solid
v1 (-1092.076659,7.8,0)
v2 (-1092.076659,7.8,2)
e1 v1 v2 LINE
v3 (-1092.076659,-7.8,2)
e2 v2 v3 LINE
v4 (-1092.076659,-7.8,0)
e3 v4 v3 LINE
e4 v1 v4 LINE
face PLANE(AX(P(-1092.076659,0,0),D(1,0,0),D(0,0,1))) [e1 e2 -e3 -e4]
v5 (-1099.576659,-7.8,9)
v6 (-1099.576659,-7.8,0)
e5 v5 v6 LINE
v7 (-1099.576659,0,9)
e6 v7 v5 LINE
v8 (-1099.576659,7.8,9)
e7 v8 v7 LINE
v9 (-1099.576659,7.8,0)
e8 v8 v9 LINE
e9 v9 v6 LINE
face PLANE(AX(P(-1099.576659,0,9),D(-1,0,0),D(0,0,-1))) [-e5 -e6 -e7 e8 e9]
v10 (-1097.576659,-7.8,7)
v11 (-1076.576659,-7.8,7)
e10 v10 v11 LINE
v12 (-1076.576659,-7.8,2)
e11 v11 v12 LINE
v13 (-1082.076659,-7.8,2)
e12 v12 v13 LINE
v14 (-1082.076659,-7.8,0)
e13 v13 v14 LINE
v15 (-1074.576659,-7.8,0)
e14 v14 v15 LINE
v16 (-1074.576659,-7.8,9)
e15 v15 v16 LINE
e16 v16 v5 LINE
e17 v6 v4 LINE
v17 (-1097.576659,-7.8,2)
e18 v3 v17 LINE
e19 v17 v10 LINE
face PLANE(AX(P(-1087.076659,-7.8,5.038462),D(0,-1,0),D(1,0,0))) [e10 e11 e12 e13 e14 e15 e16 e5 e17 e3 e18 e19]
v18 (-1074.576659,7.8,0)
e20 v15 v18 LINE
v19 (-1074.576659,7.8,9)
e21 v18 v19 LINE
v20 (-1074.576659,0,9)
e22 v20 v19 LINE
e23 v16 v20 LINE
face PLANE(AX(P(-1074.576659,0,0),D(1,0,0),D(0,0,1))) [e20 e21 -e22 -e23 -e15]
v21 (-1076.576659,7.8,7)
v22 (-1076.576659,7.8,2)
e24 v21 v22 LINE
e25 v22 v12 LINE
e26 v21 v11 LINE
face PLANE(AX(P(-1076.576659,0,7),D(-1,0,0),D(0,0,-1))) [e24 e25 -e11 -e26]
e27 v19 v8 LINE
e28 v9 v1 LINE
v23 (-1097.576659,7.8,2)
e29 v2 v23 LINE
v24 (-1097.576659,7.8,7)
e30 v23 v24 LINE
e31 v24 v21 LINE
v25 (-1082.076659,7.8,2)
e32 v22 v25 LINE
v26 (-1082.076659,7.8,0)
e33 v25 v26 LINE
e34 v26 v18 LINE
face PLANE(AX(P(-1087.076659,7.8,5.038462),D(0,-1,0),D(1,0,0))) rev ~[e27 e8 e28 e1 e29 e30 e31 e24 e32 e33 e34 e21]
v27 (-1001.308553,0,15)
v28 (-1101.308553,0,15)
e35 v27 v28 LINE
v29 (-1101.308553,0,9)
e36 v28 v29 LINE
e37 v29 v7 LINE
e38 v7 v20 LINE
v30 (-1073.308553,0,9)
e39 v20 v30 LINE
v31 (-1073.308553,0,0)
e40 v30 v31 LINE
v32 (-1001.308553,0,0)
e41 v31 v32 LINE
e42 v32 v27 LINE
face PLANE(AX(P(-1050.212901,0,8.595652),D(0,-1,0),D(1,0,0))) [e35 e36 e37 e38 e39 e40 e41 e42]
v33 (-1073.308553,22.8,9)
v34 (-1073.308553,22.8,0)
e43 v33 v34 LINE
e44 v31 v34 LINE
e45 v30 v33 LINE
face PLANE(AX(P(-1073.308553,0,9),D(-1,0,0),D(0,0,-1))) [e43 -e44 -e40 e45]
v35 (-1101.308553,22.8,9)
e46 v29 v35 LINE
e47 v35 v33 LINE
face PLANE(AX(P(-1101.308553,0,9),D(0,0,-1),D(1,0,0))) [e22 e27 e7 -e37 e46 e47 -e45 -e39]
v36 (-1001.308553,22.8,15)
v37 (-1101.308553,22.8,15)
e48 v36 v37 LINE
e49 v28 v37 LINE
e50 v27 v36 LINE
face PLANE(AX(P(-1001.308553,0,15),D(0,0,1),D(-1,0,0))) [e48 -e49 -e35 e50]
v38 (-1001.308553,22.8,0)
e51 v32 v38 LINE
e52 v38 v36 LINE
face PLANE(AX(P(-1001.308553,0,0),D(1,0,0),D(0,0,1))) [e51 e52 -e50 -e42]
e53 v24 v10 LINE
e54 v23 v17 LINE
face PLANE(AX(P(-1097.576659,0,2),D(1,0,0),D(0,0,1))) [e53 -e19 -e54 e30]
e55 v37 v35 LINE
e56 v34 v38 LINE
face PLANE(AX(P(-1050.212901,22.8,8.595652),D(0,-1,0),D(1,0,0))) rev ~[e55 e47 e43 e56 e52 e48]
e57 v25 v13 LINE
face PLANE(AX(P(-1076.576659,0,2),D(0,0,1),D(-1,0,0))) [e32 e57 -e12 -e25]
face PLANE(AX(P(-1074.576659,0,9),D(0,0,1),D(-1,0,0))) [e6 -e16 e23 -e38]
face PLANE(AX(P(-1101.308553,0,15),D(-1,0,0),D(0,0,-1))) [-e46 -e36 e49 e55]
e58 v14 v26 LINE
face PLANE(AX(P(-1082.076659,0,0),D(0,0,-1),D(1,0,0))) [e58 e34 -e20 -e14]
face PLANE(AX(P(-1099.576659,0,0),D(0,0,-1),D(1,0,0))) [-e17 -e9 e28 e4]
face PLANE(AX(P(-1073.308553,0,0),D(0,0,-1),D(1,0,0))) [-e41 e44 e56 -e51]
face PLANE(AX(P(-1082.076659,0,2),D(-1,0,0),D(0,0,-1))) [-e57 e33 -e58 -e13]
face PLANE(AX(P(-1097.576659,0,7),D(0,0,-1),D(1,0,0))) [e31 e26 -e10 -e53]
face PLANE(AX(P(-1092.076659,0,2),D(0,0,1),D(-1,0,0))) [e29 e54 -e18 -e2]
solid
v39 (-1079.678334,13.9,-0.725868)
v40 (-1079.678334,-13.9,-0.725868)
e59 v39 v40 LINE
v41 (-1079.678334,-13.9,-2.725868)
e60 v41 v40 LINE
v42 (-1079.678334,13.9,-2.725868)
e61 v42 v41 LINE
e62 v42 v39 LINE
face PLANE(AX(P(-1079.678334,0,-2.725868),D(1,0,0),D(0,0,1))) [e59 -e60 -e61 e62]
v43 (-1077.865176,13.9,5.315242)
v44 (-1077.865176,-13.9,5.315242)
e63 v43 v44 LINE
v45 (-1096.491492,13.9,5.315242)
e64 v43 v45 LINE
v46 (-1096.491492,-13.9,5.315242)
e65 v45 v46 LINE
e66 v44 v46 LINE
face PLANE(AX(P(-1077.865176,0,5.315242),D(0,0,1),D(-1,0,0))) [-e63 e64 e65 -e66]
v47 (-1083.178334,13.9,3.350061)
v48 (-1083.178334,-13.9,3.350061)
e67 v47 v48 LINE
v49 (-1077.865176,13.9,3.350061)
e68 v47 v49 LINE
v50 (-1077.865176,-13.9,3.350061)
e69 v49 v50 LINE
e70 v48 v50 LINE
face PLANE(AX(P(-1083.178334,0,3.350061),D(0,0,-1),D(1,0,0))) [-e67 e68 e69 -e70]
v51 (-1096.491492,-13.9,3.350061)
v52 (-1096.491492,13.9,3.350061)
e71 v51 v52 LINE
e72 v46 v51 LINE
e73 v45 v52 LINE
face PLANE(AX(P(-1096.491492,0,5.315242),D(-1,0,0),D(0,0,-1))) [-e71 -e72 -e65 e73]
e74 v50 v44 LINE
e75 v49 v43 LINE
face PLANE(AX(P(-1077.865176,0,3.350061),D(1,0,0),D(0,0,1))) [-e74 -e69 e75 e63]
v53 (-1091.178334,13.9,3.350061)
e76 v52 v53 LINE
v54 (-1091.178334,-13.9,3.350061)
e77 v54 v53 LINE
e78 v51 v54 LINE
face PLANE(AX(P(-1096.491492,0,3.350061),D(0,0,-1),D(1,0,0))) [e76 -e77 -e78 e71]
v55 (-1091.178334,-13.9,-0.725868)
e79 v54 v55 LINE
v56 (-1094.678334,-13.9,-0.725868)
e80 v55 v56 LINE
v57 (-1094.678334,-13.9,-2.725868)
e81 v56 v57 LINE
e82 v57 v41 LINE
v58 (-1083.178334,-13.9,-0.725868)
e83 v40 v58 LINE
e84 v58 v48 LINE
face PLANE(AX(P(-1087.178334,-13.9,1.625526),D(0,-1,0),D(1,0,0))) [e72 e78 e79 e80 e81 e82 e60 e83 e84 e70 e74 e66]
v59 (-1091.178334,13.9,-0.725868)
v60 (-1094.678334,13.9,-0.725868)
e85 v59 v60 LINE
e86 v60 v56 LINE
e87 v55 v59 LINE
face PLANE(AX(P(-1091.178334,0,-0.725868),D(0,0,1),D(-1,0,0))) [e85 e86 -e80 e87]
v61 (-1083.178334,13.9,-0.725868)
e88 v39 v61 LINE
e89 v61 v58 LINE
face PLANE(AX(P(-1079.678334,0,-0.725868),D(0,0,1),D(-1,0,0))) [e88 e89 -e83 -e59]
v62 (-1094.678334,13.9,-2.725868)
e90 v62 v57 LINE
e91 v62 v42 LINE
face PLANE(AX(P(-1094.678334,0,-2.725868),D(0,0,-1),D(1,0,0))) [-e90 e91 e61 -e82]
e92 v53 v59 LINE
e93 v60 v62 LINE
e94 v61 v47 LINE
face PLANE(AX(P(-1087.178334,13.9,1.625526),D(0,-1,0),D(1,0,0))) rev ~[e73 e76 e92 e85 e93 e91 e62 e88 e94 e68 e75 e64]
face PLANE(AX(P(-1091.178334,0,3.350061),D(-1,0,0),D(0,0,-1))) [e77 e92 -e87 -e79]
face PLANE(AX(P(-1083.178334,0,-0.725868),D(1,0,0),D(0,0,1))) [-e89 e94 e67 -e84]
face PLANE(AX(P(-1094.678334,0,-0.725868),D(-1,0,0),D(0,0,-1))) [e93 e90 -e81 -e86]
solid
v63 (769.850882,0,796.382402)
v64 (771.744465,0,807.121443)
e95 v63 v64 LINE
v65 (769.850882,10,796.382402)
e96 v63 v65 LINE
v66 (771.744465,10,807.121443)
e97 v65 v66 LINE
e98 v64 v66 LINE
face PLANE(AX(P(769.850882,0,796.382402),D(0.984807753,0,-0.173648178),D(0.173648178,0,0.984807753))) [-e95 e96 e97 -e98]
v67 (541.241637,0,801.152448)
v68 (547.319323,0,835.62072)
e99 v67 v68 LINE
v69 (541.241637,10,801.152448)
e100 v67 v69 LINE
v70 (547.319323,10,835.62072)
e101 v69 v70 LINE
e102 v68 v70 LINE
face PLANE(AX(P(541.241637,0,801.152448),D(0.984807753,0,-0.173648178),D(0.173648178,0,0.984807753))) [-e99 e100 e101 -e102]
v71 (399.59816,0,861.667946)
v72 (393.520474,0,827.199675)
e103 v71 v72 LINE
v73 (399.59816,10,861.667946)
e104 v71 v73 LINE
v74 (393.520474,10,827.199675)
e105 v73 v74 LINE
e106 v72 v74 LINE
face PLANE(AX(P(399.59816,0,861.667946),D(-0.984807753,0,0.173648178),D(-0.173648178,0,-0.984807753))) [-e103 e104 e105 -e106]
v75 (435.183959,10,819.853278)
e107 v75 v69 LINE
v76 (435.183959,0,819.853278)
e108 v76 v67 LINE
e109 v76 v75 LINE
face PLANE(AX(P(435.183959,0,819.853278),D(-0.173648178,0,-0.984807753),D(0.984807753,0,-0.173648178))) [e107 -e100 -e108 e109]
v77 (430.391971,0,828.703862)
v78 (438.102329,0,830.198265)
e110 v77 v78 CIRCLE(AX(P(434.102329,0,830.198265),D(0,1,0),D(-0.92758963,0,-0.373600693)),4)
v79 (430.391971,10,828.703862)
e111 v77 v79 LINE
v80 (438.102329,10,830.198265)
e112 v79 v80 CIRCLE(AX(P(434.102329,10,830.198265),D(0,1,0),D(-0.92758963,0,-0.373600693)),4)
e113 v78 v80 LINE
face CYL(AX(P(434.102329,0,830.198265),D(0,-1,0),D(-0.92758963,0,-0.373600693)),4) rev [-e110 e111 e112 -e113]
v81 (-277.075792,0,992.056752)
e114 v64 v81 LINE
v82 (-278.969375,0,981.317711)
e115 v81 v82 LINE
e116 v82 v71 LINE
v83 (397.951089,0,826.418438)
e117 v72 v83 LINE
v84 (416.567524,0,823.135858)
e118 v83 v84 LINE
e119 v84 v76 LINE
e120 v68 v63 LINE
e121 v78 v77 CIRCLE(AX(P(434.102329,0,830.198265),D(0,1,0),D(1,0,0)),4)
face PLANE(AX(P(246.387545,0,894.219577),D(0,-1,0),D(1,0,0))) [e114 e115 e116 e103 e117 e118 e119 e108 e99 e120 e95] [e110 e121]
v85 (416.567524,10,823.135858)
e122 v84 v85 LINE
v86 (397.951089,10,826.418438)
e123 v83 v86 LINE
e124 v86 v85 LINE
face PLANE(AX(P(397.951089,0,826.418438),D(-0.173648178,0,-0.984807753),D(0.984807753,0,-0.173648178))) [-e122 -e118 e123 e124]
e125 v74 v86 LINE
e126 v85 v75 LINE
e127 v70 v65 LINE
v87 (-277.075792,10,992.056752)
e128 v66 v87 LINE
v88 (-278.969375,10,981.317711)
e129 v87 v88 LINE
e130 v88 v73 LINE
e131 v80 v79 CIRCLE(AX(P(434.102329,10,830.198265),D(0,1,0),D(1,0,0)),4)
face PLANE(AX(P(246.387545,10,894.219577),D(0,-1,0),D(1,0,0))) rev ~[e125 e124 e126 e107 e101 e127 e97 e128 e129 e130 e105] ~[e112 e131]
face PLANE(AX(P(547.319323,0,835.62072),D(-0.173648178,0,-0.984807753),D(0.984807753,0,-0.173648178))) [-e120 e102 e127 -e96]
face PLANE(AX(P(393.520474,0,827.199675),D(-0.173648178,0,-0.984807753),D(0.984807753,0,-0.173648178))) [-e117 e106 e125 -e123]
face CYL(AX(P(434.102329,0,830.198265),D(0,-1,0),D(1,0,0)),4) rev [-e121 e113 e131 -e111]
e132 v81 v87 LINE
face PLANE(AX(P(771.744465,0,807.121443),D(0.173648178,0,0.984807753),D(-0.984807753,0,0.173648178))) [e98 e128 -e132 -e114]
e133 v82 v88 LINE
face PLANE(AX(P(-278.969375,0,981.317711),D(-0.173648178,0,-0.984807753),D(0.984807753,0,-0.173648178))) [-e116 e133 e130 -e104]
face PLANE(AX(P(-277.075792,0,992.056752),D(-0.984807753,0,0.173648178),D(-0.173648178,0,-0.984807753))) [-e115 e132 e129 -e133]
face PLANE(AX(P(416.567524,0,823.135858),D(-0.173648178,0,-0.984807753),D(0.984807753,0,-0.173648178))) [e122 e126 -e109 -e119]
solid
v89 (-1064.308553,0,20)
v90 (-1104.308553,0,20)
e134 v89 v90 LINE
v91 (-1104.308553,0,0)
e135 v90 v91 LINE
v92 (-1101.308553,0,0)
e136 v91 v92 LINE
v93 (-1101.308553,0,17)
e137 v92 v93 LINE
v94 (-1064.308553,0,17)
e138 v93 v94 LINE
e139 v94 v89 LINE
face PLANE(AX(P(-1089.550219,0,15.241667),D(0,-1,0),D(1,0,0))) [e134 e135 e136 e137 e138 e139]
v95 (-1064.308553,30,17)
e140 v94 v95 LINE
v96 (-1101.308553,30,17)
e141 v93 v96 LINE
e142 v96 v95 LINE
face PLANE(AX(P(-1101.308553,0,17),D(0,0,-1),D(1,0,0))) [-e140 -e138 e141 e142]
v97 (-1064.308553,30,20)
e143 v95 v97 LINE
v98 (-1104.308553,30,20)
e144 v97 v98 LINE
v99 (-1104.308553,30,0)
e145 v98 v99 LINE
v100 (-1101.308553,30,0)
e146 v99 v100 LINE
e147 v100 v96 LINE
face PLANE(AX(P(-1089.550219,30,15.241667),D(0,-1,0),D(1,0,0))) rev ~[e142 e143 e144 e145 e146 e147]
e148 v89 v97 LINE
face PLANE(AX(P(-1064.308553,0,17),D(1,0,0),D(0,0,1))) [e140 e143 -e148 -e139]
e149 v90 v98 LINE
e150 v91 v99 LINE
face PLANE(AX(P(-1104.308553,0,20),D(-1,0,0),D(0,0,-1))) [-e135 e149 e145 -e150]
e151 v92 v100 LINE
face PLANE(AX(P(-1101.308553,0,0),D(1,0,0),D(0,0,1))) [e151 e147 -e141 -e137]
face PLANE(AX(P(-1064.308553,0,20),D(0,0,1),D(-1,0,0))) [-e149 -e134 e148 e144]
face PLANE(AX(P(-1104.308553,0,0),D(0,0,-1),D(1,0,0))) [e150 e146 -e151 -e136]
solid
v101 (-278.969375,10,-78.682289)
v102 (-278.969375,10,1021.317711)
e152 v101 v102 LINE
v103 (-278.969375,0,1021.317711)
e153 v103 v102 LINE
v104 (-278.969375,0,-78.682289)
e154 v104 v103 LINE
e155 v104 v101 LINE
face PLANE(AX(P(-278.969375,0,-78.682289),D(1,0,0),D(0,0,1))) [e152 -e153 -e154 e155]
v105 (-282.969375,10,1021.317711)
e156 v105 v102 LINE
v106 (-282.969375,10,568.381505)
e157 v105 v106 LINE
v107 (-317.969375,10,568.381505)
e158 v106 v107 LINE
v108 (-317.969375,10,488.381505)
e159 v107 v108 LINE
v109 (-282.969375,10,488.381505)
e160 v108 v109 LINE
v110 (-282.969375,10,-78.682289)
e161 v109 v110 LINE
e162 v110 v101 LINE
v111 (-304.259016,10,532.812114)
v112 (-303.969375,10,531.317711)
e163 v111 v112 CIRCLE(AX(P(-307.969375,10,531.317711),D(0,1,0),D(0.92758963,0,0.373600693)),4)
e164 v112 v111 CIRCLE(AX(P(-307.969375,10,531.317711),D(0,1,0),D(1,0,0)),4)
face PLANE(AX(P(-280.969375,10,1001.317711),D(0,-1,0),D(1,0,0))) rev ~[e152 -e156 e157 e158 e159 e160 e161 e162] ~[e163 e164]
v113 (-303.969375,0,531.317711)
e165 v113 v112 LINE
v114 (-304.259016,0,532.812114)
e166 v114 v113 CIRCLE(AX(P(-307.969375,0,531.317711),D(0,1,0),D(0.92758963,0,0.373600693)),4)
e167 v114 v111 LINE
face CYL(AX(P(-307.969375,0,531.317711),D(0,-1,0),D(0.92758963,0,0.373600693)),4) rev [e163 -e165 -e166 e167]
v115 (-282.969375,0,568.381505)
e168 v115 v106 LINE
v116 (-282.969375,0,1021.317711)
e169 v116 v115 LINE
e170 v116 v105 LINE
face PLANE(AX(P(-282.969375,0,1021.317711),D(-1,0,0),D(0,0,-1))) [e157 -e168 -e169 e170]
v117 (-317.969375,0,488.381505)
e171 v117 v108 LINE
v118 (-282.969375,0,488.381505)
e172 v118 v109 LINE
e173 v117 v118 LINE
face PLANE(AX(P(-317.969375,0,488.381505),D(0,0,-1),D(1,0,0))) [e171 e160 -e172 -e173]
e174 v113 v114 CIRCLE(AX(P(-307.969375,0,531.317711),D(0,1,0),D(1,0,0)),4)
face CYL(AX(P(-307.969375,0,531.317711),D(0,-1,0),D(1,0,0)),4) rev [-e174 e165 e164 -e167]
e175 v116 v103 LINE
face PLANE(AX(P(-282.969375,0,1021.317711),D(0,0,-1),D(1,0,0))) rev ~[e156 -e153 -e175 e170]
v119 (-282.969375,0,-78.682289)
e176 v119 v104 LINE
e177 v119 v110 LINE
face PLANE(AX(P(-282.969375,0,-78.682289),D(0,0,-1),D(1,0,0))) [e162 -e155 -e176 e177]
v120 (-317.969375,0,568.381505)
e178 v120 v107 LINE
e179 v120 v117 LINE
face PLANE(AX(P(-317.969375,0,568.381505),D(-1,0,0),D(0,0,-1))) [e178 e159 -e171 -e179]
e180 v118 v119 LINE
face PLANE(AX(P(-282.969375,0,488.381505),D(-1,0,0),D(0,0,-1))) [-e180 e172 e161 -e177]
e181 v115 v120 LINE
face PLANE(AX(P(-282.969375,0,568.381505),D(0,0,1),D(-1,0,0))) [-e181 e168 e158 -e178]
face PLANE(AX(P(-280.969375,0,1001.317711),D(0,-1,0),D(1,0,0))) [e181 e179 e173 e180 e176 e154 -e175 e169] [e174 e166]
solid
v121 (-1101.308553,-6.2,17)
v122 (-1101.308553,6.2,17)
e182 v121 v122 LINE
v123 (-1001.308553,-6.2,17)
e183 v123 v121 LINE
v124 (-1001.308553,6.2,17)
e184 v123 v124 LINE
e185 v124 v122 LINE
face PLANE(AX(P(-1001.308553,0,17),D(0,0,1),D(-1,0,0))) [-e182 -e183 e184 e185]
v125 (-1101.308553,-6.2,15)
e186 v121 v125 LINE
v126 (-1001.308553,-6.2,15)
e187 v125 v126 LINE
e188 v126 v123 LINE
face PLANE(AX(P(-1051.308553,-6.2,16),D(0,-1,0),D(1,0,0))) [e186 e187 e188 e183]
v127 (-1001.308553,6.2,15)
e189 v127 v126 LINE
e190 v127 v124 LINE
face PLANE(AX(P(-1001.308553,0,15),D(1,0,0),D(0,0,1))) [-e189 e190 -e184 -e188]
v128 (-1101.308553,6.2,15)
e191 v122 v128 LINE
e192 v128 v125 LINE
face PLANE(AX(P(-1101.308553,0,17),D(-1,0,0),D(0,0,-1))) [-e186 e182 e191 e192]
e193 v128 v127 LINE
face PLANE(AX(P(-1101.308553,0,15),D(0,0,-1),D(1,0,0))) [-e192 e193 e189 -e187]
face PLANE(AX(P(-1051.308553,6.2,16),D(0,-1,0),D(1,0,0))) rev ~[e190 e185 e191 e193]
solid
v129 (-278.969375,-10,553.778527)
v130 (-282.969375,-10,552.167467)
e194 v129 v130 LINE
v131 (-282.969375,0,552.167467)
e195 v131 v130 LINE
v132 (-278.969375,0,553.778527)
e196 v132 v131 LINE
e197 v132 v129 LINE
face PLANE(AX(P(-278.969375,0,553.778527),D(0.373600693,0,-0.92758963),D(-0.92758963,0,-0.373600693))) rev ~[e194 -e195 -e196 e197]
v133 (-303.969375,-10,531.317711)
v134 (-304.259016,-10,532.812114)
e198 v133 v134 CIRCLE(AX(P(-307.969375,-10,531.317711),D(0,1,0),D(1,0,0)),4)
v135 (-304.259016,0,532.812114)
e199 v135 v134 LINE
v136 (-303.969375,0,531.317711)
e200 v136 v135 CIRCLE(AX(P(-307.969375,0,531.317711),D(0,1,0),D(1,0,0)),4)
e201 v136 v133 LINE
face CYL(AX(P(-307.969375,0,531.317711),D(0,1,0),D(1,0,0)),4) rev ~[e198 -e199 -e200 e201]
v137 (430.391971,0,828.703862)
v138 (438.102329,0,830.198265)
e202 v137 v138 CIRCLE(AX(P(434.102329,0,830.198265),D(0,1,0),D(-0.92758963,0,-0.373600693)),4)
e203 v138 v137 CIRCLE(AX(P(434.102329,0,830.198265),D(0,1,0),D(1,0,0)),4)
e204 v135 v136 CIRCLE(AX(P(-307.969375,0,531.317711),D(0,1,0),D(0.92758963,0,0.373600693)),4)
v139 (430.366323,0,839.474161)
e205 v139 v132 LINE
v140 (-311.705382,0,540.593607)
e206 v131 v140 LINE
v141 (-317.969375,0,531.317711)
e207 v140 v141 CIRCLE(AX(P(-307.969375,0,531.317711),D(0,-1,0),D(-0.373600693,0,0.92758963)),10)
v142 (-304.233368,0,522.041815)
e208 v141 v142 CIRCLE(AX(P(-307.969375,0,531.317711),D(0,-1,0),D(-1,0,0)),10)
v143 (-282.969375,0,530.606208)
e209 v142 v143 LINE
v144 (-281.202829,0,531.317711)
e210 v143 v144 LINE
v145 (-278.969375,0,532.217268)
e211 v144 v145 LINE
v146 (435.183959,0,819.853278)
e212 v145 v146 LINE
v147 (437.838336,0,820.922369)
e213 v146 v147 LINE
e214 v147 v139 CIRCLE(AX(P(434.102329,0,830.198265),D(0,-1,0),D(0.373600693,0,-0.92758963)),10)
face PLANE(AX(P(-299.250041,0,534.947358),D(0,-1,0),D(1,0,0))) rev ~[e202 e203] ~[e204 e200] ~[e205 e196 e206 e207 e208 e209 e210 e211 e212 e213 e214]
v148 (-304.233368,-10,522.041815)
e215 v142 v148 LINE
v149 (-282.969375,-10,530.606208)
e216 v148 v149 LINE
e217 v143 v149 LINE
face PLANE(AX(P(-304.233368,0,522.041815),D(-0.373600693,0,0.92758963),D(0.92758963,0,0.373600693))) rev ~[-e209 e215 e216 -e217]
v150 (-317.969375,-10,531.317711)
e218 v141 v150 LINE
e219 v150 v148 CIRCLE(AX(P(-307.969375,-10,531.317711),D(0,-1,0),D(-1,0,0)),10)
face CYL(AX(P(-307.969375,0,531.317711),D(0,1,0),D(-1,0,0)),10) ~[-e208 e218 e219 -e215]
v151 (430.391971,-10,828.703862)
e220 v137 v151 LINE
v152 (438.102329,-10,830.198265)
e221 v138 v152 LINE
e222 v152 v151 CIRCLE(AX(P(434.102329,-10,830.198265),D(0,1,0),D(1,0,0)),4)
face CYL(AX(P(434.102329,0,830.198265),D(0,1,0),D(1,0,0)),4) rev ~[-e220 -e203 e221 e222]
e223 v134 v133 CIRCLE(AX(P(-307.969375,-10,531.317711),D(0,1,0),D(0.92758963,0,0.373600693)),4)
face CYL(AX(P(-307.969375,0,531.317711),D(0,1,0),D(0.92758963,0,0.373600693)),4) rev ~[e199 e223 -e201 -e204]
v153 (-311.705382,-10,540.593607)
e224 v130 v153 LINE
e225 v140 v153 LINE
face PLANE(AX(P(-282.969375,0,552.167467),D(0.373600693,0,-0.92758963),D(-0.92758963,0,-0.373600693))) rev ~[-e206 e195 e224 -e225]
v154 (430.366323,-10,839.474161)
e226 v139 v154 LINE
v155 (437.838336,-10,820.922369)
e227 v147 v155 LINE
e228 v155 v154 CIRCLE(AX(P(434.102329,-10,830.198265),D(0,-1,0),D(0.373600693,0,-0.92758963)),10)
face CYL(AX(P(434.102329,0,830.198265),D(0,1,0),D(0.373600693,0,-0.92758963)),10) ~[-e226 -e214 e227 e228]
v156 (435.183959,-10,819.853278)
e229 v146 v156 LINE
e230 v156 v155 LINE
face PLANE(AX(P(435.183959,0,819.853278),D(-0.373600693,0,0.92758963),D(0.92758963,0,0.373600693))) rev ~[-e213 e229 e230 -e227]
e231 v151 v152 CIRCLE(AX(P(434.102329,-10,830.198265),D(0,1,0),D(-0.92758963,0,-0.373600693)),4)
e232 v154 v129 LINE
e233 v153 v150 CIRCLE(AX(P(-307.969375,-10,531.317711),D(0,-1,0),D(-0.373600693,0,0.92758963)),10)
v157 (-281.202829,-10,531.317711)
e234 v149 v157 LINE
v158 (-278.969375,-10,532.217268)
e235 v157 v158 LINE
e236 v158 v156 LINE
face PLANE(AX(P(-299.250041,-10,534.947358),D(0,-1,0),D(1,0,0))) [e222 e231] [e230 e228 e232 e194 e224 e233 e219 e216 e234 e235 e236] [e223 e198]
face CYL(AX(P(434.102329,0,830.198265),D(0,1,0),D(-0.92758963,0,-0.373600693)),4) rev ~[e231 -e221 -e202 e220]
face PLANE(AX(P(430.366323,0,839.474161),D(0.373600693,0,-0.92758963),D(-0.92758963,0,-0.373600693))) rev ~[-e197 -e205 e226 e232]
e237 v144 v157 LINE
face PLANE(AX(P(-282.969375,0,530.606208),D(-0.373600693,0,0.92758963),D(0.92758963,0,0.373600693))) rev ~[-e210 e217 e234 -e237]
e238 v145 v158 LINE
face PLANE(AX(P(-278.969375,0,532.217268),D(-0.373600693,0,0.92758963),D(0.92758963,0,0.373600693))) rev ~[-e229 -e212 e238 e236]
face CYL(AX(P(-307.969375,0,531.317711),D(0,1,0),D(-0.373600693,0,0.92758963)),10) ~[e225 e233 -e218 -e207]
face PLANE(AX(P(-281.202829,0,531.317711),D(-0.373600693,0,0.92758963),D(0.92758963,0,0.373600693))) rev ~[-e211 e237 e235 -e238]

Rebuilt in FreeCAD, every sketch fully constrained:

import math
import FreeCAD as App
import Part
import Sketcher
Q = App.Units.Quantity

doc = App.newDocument("Part")
body = doc.addObject("PartDesign::Body", "Body")

sketch1 = body.newObject("Sketcher::SketchObject", "Sketch")
sketch1.AttachmentSupport = (doc.getObject("XZ_Plane"), [""])
sketch1.MapMode = "FlatFace"
sketch1.addGeometry([
    Part.LineSegment(App.Vector(-282.969375, 1021.317711, 0), App.Vector(-282.969375, 568.381505, 0)),
    Part.LineSegment(App.Vector(-282.969375, 568.381505, 0), App.Vector(-317.969375, 568.381505, 0)),
    Part.LineSegment(App.Vector(-317.969375, 568.381505, 0), App.Vector(-317.969375, 488.381505, 0)),
    Part.LineSegment(App.Vector(-317.969375, 488.381505, 0), App.Vector(-282.969375, 488.381505, 0)),
    Part.LineSegment(App.Vector(-282.969375, 488.381505, 0), App.Vector(-282.969375, -78.682289, 0)),
    Part.LineSegment(App.Vector(-282.969375, -78.682289, 0), App.Vector(-278.969375, -78.682289, 0)),
    Part.LineSegment(App.Vector(-278.969375, -78.682289, 0), App.Vector(-278.969375, 1021.317711, 0)),
    Part.LineSegment(App.Vector(-278.969375, 1021.317711, 0), App.Vector(-282.969375, 1021.317711, 0)),
    Part.ArcOfCircle(Part.Circle(App.Vector(-307.969375, 531.317711, 0), App.Vector(0, 0, 1), 4), math.radians(21.937853), math.radians(360)),
    Part.ArcOfCircle(Part.Circle(App.Vector(-307.969375, 531.317711, 0), App.Vector(0, 0, 1), 4), math.radians(0), math.radians(21.937853)),
], False)
sketch1.addConstraint([
    Sketcher.Constraint("Coincident", 0, 2, 1, 1),
    Sketcher.Constraint("Coincident", 1, 2, 2, 1),
    Sketcher.Constraint("Coincident", 2, 2, 3, 1),
    Sketcher.Constraint("Coincident", 3, 2, 4, 1),
    Sketcher.Constraint("Coincident", 4, 2, 5, 1),
    Sketcher.Constraint("Coincident", 5, 2, 6, 1),
    Sketcher.Constraint("Coincident", 6, 2, 7, 1),
    Sketcher.Constraint("Coincident", 7, 2, 0, 1),
    Sketcher.Constraint("Tangent", 8, 1, 9, 2),
    Sketcher.Constraint("Coincident", 9, 1, 8, 2),
    Sketcher.Constraint("Vertical", 0),
    Sketcher.Constraint("Horizontal", 1),
    Sketcher.Constraint("Vertical", 2),
    Sketcher.Constraint("Horizontal", 3),
    Sketcher.Constraint("Vertical", 4),
    Sketcher.Constraint("Horizontal", 5),
    Sketcher.Constraint("Vertical", 6),
    Sketcher.Constraint("Horizontal", 7),
    Sketcher.Constraint("Horizontal", 8, 3, 9, 1),
    Sketcher.Constraint("Vertical", 0, 2, 3, 2),
    Sketcher.Constraint("Radius", 8, 4.0),
    Sketcher.Constraint("DistanceX", 1, 2, 1, 1, 35.0),
    Sketcher.Constraint("DistanceX", 5, 1, 5, 2, 4.0),
    Sketcher.Constraint("DistanceY", 2, 2, 2, 1, 80.0),
    Sketcher.Constraint("DistanceY", 6, 1, 6, 2, 1100.0),
    Sketcher.Constraint("DistanceX", 9, 3, 0, 2, 25.0),
    Sketcher.Constraint("DistanceY", 4, 2, 8, 3, 610.0),
    Sketcher.Constraint("DistanceY", 0, 2, 0, 1, 452.936206),
    Sketcher.Constraint("DistanceY", -1, 1, 8, 3, 531.317711),
    Sketcher.Constraint("DistanceX", 9, 3, 8, 1, 3.710359),
    Sketcher.Constraint("DistanceX", 8, 3, -1, 1, 307.969375),
])
pad1 = body.newObject("PartDesign::Pad", "Pad")
pad1.Profile = sketch1
pad1.Length = 10
pad1.Reversed = True
body2 = doc.addObject("PartDesign::Body", "Body001")

sketch2 = body2.newObject("Sketcher::SketchObject", "Sketch001")
sketch2.AttachmentSupport = (doc.getObject("XZ_Plane001"), [""])
sketch2.MapMode = "FlatFace"
sketch2.addGeometry([
    Part.LineSegment(App.Vector(-277.075792, 992.056752, 0), App.Vector(-278.969375, 981.317711, 0)),
    Part.LineSegment(App.Vector(-278.969375, 981.317711, 0), App.Vector(399.59816, 861.667946, 0)),
    Part.LineSegment(App.Vector(399.59816, 861.667946, 0), App.Vector(393.520474, 827.199675, 0)),
    Part.LineSegment(App.Vector(393.520474, 827.199675, 0), App.Vector(397.951089, 826.418438, 0)),
    Part.LineSegment(App.Vector(397.951089, 826.418438, 0), App.Vector(416.567524, 823.135858, 0)),
    Part.LineSegment(App.Vector(416.567524, 823.135858, 0), App.Vector(435.183959, 819.853278, 0)),
    Part.LineSegment(App.Vector(435.183959, 819.853278, 0), App.Vector(541.241637, 801.152448, 0)),
    Part.LineSegment(App.Vector(541.241637, 801.152448, 0), App.Vector(547.319323, 835.62072, 0)),
    Part.LineSegment(App.Vector(547.319323, 835.62072, 0), App.Vector(769.850882, 796.382402, 0)),
    Part.LineSegment(App.Vector(769.850882, 796.382402, 0), App.Vector(771.744465, 807.121443, 0)),
    Part.LineSegment(App.Vector(771.744465, 807.121443, 0), App.Vector(-277.075792, 992.056752, 0)),
    Part.ArcOfCircle(Part.Circle(App.Vector(434.102329, 830.198265, 0), App.Vector(0, 0, 1), 4), math.radians(0), math.radians(201.937853)),
    Part.ArcOfCircle(Part.Circle(App.Vector(434.102329, 830.198265, 0), App.Vector(0, 0, 1), 4), math.radians(-158.062147), math.radians(0)),
], False)
sketch2.addConstraint([
    Sketcher.Constraint("Coincident", 0, 2, 1, 1),
    Sketcher.Constraint("Coincident", 1, 2, 2, 1),
    Sketcher.Constraint("Coincident", 2, 2, 3, 1),
    Sketcher.Constraint("Coincident", 3, 2, 4, 1),
    Sketcher.Constraint("Coincident", 4, 2, 5, 1),
    Sketcher.Constraint("Coincident", 5, 2, 6, 1),
    Sketcher.Constraint("Coincident", 6, 2, 7, 1),
    Sketcher.Constraint("Coincident", 7, 2, 8, 1),
    Sketcher.Constraint("Coincident", 8, 2, 9, 1),
    Sketcher.Constraint("Coincident", 9, 2, 10, 1),
    Sketcher.Constraint("Coincident", 10, 2, 0, 1),
    Sketcher.Constraint("Tangent", 11, 1, 12, 2),
    Sketcher.Constraint("Coincident", 12, 1, 11, 2),
    Sketcher.Constraint("Perpendicular", 0, 1),
    Sketcher.Constraint("Perpendicular", 1, 2),
    Sketcher.Constraint("Perpendicular", 2, 3),
    Sketcher.Constraint("Parallel", 3, 4),
    Sketcher.Constraint("Parallel", 4, 5),
    Sketcher.Constraint("Parallel", 5, 6),
    Sketcher.Constraint("Perpendicular", 6, 7),
    Sketcher.Constraint("Perpendicular", 7, 8),
    Sketcher.Constraint("Perpendicular", 8, 9),
    Sketcher.Constraint("Perpendicular", 9, 10),
    Sketcher.Constraint("Horizontal", 12, 3, 11, 1),
    Sketcher.Constraint("Equal", 4, 5),
    Sketcher.Constraint("Equal", 2, 7),
    Sketcher.Constraint("Radius", 11, 4.0),
    Sketcher.Constraint("Angle", 0, Q("-100 deg")),
    Sketcher.Constraint("Distance", 2, 35.0),
    Sketcher.Constraint("Distance", 10, 1065.0),
    Sketcher.Constraint("DistanceY", -1, 1, 8, 2, 796.382402),
    Sketcher.Constraint("DistanceX", 4, 2, 7, 2, 130.751799),
    Sketcher.Constraint("Distance", 0, 10.904708),
    Sketcher.Constraint("Distance", 6, 107.693788),
    Sketcher.Constraint("DistanceX", -1, 1, 11, 3, 434.102329),
    Sketcher.Constraint("DistanceX", -1, 1, 1, 2, 399.59816),
    Sketcher.Constraint("DistanceX", -1, 1, 3, 2, 397.951089),
    Sketcher.Constraint("DistanceY", -1, 1, 4, 2, 823.135858),
    Sketcher.Constraint("DistanceX", -1, 1, 12, 1, 430.391971),
    Sketcher.Constraint("DistanceY", 11, 3, 1, 2, 31.469681),
])
pad2 = body2.newObject("PartDesign::Pad", "Pad001")
pad2.Profile = sketch2
pad2.Length = 10
pad2.Reversed = True
body3 = doc.addObject("PartDesign::Body", "Body002")

sketch3 = body3.newObject("Sketcher::SketchObject", "Sketch002")
sketch3.AttachmentSupport = (doc.getObject("XZ_Plane002"), [""])
sketch3.MapMode = "FlatFace"
sketch3.addGeometry([
    Part.LineSegment(App.Vector(-282.969375, 552.167467, 0), App.Vector(-311.705382, 540.593607, 0)),
    Part.ArcOfCircle(Part.Circle(App.Vector(-307.969375, 531.317711, 0), App.Vector(0, 0, 1), 10), math.radians(111.937853), math.radians(180)),
    Part.ArcOfCircle(Part.Circle(App.Vector(-307.969375, 531.317711, 0), App.Vector(0, 0, 1), 10), math.radians(180), math.radians(291.937853)),
    Part.LineSegment(App.Vector(-304.233368, 522.041815, 0), App.Vector(-282.969375, 530.606208, 0)),
    Part.LineSegment(App.Vector(-282.969375, 530.606208, 0), App.Vector(-281.202829, 531.317711, 0)),
    Part.LineSegment(App.Vector(-281.202829, 531.317711, 0), App.Vector(-278.969375, 532.217268, 0)),
    Part.LineSegment(App.Vector(-278.969375, 532.217268, 0), App.Vector(435.183959, 819.853278, 0)),
    Part.LineSegment(App.Vector(435.183959, 819.853278, 0), App.Vector(437.838336, 820.922369, 0)),
    Part.ArcOfCircle(Part.Circle(App.Vector(434.102329, 830.198265, 0), App.Vector(0, 0, 1), 10), math.radians(-68.062147), math.radians(111.937853)),
    Part.LineSegment(App.Vector(430.366323, 839.474161, 0), App.Vector(-278.969375, 553.778527, 0)),
    Part.LineSegment(App.Vector(-278.969375, 553.778527, 0), App.Vector(-282.969375, 552.167467, 0)),
    Part.ArcOfCircle(Part.Circle(App.Vector(-307.969375, 531.317711, 0), App.Vector(0, 0, 1), 4), math.radians(21.937853), math.radians(360)),
    Part.ArcOfCircle(Part.Circle(App.Vector(-307.969375, 531.317711, 0), App.Vector(0, 0, 1), 4), math.radians(0), math.radians(21.937853)),
    Part.ArcOfCircle(Part.Circle(App.Vector(434.102329, 830.198265, 0), App.Vector(0, 0, 1), 4), math.radians(0), math.radians(201.937853)),
    Part.ArcOfCircle(Part.Circle(App.Vector(434.102329, 830.198265, 0), App.Vector(0, 0, 1), 4), math.radians(-158.062147), math.radians(0)),
], False)
sketch3.addConstraint([
    Sketcher.Constraint("Tangent", 0, 2, 1, 1),
    Sketcher.Constraint("Tangent", 1, 2, 2, 1),
    Sketcher.Constraint("Tangent", 2, 2, 3, 1),
    Sketcher.Constraint("Coincident", 3, 2, 4, 1),
    Sketcher.Constraint("Coincident", 4, 2, 5, 1),
    Sketcher.Constraint("Coincident", 5, 2, 6, 1),
    Sketcher.Constraint("Coincident", 6, 2, 7, 1),
    Sketcher.Constraint("Tangent", 7, 2, 8, 1),
    Sketcher.Constraint("Tangent", 8, 2, 9, 1),
    Sketcher.Constraint("Coincident", 9, 2, 10, 1),
    Sketcher.Constraint("Coincident", 10, 2, 0, 1),
    Sketcher.Constraint("Tangent", 11, 1, 12, 2),
    Sketcher.Constraint("Coincident", 12, 1, 11, 2),
    Sketcher.Constraint("Tangent", 13, 1, 14, 2),
    Sketcher.Constraint("Coincident", 14, 1, 13, 2),
    Sketcher.Constraint("Coincident", 11, 3, 1, 3),
    Sketcher.Constraint("Coincident", 13, 3, 8, 3),
    Sketcher.Constraint("Equal", 1, 2),
    Sketcher.Constraint("Equal", 2, 8),
    Sketcher.Constraint("Equal", 12, 13),
    Sketcher.Constraint("Parallel", 0, 3),
    Sketcher.Constraint("Parallel", 3, 4),
    Sketcher.Constraint("Parallel", 4, 5),
    Sketcher.Constraint("Parallel", 5, 6),
    Sketcher.Constraint("Parallel", 6, 7),
    Sketcher.Constraint("Parallel", 7, 9),
    Sketcher.Constraint("Horizontal", 12, 3, 1, 2),
    Sketcher.Constraint("Horizontal", 1, 2, 4, 2),
    Sketcher.Constraint("Horizontal", 4, 2, 12, 1),
    Sketcher.Constraint("Horizontal", 14, 3, 13, 1),
    Sketcher.Constraint("Vertical", 5, 2, 9, 2),
    Sketcher.Constraint("Vertical", 3, 2, 10, 2),
    Sketcher.Constraint("Radius", 1, 10.0),
    Sketcher.Constraint("Radius", 11, 4.0),
    Sketcher.Constraint("DistanceX", 12, 3, 3, 2, 25.0),
    Sketcher.Constraint("DistanceX", 3, 2, 5, 2, 4.0),
    Sketcher.Constraint("DistanceY", 5, 2, 7, 2, 288.7051),
    Sketcher.Constraint("Distance", 6, 769.90224),
    Sketcher.Constraint("DistanceY", -1, 1, 1, 3, 531.317711),
    Sketcher.Constraint("DistanceX", -1, 1, 8, 3, 434.102329),
    Sketcher.Constraint("DistanceX", 0, 2, -1, 1, 311.705382),
    Sketcher.Constraint("DistanceX", -1, 1, 14, 1, 430.391971),
    Sketcher.Constraint("DistanceX", 12, 3, 11, 1, 3.710359),
])
pad3 = body3.newObject("PartDesign::Pad", "Pad002")
pad3.Profile = sketch3
pad3.Length = 10
body4 = doc.addObject("PartDesign::Body", "Body003")

sketch4 = body4.newObject("Sketcher::SketchObject", "Sketch003")
sketch4.AttachmentSupport = (doc.getObject("XZ_Plane003"), [""])
sketch4.MapMode = "FlatFace"
sketch4.addGeometry([
    Part.LineSegment(App.Vector(-1104.308553, 20, 0), App.Vector(-1104.308553, 0, 0)),
    Part.LineSegment(App.Vector(-1104.308553, 0, 0), App.Vector(-1101.308553, 0, 0)),
    Part.LineSegment(App.Vector(-1101.308553, 0, 0), App.Vector(-1101.308553, 17, 0)),
    Part.LineSegment(App.Vector(-1101.308553, 17, 0), App.Vector(-1064.308553, 17, 0)),
    Part.LineSegment(App.Vector(-1064.308553, 17, 0), App.Vector(-1064.308553, 20, 0)),
    Part.LineSegment(App.Vector(-1064.308553, 20, 0), App.Vector(-1104.308553, 20, 0)),
], False)
sketch4.addConstraint([
    Sketcher.Constraint("Coincident", 0, 2, 1, 1),
    Sketcher.Constraint("Coincident", 1, 2, 2, 1),
    Sketcher.Constraint("Coincident", 2, 2, 3, 1),
    Sketcher.Constraint("Coincident", 3, 2, 4, 1),
    Sketcher.Constraint("Coincident", 4, 2, 5, 1),
    Sketcher.Constraint("Coincident", 5, 2, 0, 1),
    Sketcher.Constraint("Vertical", 0),
    Sketcher.Constraint("Horizontal", 1),
    Sketcher.Constraint("Vertical", 2),
    Sketcher.Constraint("Horizontal", 3),
    Sketcher.Constraint("Vertical", 4),
    Sketcher.Constraint("Horizontal", 5),
    Sketcher.Constraint("PointOnObject", 0, 2, -1),
    Sketcher.Constraint("Equal", 1, 4),
    Sketcher.Constraint("DistanceX", 1, 1, 1, 2, 3.0),
    Sketcher.Constraint("DistanceX", 3, 1, 3, 2, 37.0),
    Sketcher.Constraint("DistanceY", 0, 2, 0, 1, 20.0),
    Sketcher.Constraint("DistanceX", 0, 2, -1, 1, 1104.308553),
])
pad4 = body4.newObject("PartDesign::Pad", "Pad003")
pad4.Profile = sketch4
pad4.Length = 30
pad4.Reversed = True
body5 = doc.addObject("PartDesign::Body", "Body004")

sketch5 = body5.newObject("Sketcher::SketchObject", "Sketch004")
sketch5.AttachmentSupport = (doc.getObject("XZ_Plane004"), [""])
sketch5.MapMode = "FlatFace"
sketch5.addGeometry([
    Part.LineSegment(App.Vector(-1101.308553, 15, 0), App.Vector(-1101.308553, 9, 0)),
    Part.LineSegment(App.Vector(-1101.308553, 9, 0), App.Vector(-1073.308553, 9, 0)),
    Part.LineSegment(App.Vector(-1073.308553, 9, 0), App.Vector(-1073.308553, 0, 0)),
    Part.LineSegment(App.Vector(-1073.308553, 0, 0), App.Vector(-1001.308553, 0, 0)),
    Part.LineSegment(App.Vector(-1001.308553, 0, 0), App.Vector(-1001.308553, 15, 0)),
    Part.LineSegment(App.Vector(-1001.308553, 15, 0), App.Vector(-1101.308553, 15, 0)),
], False)
sketch5.addConstraint([
    Sketcher.Constraint("Coincident", 0, 2, 1, 1),
    Sketcher.Constraint("Coincident", 1, 2, 2, 1),
    Sketcher.Constraint("Coincident", 2, 2, 3, 1),
    Sketcher.Constraint("Coincident", 3, 2, 4, 1),
    Sketcher.Constraint("Coincident", 4, 2, 5, 1),
    Sketcher.Constraint("Coincident", 5, 2, 0, 1),
    Sketcher.Constraint("Vertical", 0),
    Sketcher.Constraint("Horizontal", 1),
    Sketcher.Constraint("Vertical", 2),
    Sketcher.Constraint("Horizontal", 3),
    Sketcher.Constraint("Vertical", 4),
    Sketcher.Constraint("Horizontal", 5),
    Sketcher.Constraint("PointOnObject", 2, 2, -1),
    Sketcher.Constraint("DistanceX", 1, 1, 1, 2, 28.0),
    Sketcher.Constraint("DistanceX", 3, 1, 3, 2, 72.0),
    Sketcher.Constraint("DistanceY", 0, 2, 0, 1, 6.0),
    Sketcher.Constraint("DistanceY", 2, 2, 2, 1, 9.0),
    Sketcher.Constraint("DistanceX", 0, 2, -1, 1, 1101.308553),
])
pad5 = body5.newObject("PartDesign::Pad", "Pad004")
pad5.Profile = sketch5
pad5.Length = 22.8
pad5.Reversed = True

sketch6 = body5.newObject("Sketcher::SketchObject", "Sketch005")
sketch6.AttachmentSupport = (doc.getObject("XZ_Plane004"), [""])
sketch6.MapMode = "FlatFace"
sketch6.addGeometry([
    Part.LineSegment(App.Vector(-1074.576659, 9, 0), App.Vector(-1099.576659, 9, 0)),
    Part.LineSegment(App.Vector(-1099.576659, 9, 0), App.Vector(-1099.576659, 0, 0)),
    Part.LineSegment(App.Vector(-1099.576659, 0, 0), App.Vector(-1092.076659, 0, 0)),
    Part.LineSegment(App.Vector(-1092.076659, 0, 0), App.Vector(-1092.076659, 2, 0)),
    Part.LineSegment(App.Vector(-1092.076659, 2, 0), App.Vector(-1097.576659, 2, 0)),
    Part.LineSegment(App.Vector(-1097.576659, 2, 0), App.Vector(-1097.576659, 7, 0)),
    Part.LineSegment(App.Vector(-1097.576659, 7, 0), App.Vector(-1076.576659, 7, 0)),
    Part.LineSegment(App.Vector(-1076.576659, 7, 0), App.Vector(-1076.576659, 2, 0)),
    Part.LineSegment(App.Vector(-1076.576659, 2, 0), App.Vector(-1082.076659, 2, 0)),
    Part.LineSegment(App.Vector(-1082.076659, 2, 0), App.Vector(-1082.076659, 0, 0)),
    Part.LineSegment(App.Vector(-1082.076659, 0, 0), App.Vector(-1074.576659, 0, 0)),
    Part.LineSegment(App.Vector(-1074.576659, 0, 0), App.Vector(-1074.576659, 9, 0)),
], False)
sketch6.addConstraint([
    Sketcher.Constraint("Coincident", 0, 2, 1, 1),
    Sketcher.Constraint("Coincident", 1, 2, 2, 1),
    Sketcher.Constraint("Coincident", 2, 2, 3, 1),
    Sketcher.Constraint("Coincident", 3, 2, 4, 1),
    Sketcher.Constraint("Coincident", 4, 2, 5, 1),
    Sketcher.Constraint("Coincident", 5, 2, 6, 1),
    Sketcher.Constraint("Coincident", 6, 2, 7, 1),
    Sketcher.Constraint("Coincident", 7, 2, 8, 1),
    Sketcher.Constraint("Coincident", 8, 2, 9, 1),
    Sketcher.Constraint("Coincident", 9, 2, 10, 1),
    Sketcher.Constraint("Coincident", 10, 2, 11, 1),
    Sketcher.Constraint("Coincident", 11, 2, 0, 1),
    Sketcher.Constraint("Horizontal", 0),
    Sketcher.Constraint("Vertical", 1),
    Sketcher.Constraint("Horizontal", 2),
    Sketcher.Constraint("Vertical", 3),
    Sketcher.Constraint("Horizontal", 4),
    Sketcher.Constraint("Vertical", 5),
    Sketcher.Constraint("Horizontal", 6),
    Sketcher.Constraint("Vertical", 7),
    Sketcher.Constraint("Horizontal", 8),
    Sketcher.Constraint("Vertical", 9),
    Sketcher.Constraint("Horizontal", 10),
    Sketcher.Constraint("Vertical", 11),
    Sketcher.Constraint("PointOnObject", 1, 2, -1),
    Sketcher.Constraint("PointOnObject", 9, 2, -1),
    Sketcher.Constraint("Horizontal", 4, 2, 7, 2),
    Sketcher.Constraint("Equal", 4, 8),
    Sketcher.Constraint("Equal", 2, 10),
    Sketcher.Constraint("DistanceX", 0, 2, 0, 1, 25.0),
    Sketcher.Constraint("DistanceX", 6, 1, 6, 2, 21.0),
    Sketcher.Constraint("DistanceY", 1, 2, 1, 1, 9.0),
    Sketcher.Constraint("DistanceY", 3, 1, 3, 2, 2.0),
    Sketcher.Constraint("DistanceY", 5, 1, 5, 2, 5.0),
    Sketcher.Constraint("DistanceX", 2, 1, 2, 2, 7.5),
    Sketcher.Constraint("DistanceX", 0, 2, -1, 1, 1099.576659),
])
pad6 = body5.newObject("PartDesign::Pad", "Pad005")
pad6.Profile = sketch6
pad6.Length = 15.6
pad6.Midplane = True
body6 = doc.addObject("PartDesign::Body", "Body005")

sketch7 = body6.newObject("Sketcher::SketchObject", "Sketch006")
sketch7.AttachmentSupport = (doc.getObject("XZ_Plane005"), [""])
sketch7.MapMode = "FlatFace"
sketch7.addGeometry([
    Part.LineSegment(App.Vector(-1101.308553, 17, 0), App.Vector(-1101.308553, 15, 0)),
    Part.LineSegment(App.Vector(-1101.308553, 15, 0), App.Vector(-1001.308553, 15, 0)),
    Part.LineSegment(App.Vector(-1001.308553, 15, 0), App.Vector(-1001.308553, 17, 0)),
    Part.LineSegment(App.Vector(-1001.308553, 17, 0), App.Vector(-1101.308553, 17, 0)),
], False)
sketch7.addConstraint([
    Sketcher.Constraint("Coincident", 0, 2, 1, 1),
    Sketcher.Constraint("Coincident", 1, 2, 2, 1),
    Sketcher.Constraint("Coincident", 2, 2, 3, 1),
    Sketcher.Constraint("Coincident", 3, 2, 0, 1),
    Sketcher.Constraint("Vertical", 0),
    Sketcher.Constraint("Horizontal", 1),
    Sketcher.Constraint("Vertical", 2),
    Sketcher.Constraint("Horizontal", 3),
    Sketcher.Constraint("DistanceX", 1, 1, 1, 2, 100.0),
    Sketcher.Constraint("DistanceY", 0, 2, 0, 1, 2.0),
    Sketcher.Constraint("DistanceY", -1, 1, 0, 2, 15.0),
    Sketcher.Constraint("DistanceX", 0, 2, -1, 1, 1101.308553),
])
pad7 = body6.newObject("PartDesign::Pad", "Pad006")
pad7.Profile = sketch7
pad7.Length = 12.4
pad7.Midplane = True
body7 = doc.addObject("PartDesign::Body", "Body006")

sketch8 = body7.newObject("Sketcher::SketchObject", "Sketch007")
sketch8.AttachmentSupport = (doc.getObject("XZ_Plane006"), [""])
sketch8.MapMode = "FlatFace"
sketch8.addGeometry([
    Part.LineSegment(App.Vector(-1091.178334, -0.725868, 0), App.Vector(-1094.678334, -0.725868, 0)),
    Part.LineSegment(App.Vector(-1094.678334, -0.725868, 0), App.Vector(-1094.678334, -2.725868, 0)),
    Part.LineSegment(App.Vector(-1094.678334, -2.725868, 0), App.Vector(-1079.678334, -2.725868, 0)),
    Part.LineSegment(App.Vector(-1079.678334, -2.725868, 0), App.Vector(-1079.678334, -0.725868, 0)),
    Part.LineSegment(App.Vector(-1079.678334, -0.725868, 0), App.Vector(-1083.178334, -0.725868, 0)),
    Part.LineSegment(App.Vector(-1083.178334, -0.725868, 0), App.Vector(-1083.178334, 3.350061, 0)),
    Part.LineSegment(App.Vector(-1083.178334, 3.350061, 0), App.Vector(-1077.865176, 3.350061, 0)),
    Part.LineSegment(App.Vector(-1077.865176, 3.350061, 0), App.Vector(-1077.865176, 5.315242, 0)),
    Part.LineSegment(App.Vector(-1077.865176, 5.315242, 0), App.Vector(-1096.491492, 5.315242, 0)),
    Part.LineSegment(App.Vector(-1096.491492, 5.315242, 0), App.Vector(-1096.491492, 3.350061, 0)),
    Part.LineSegment(App.Vector(-1096.491492, 3.350061, 0), App.Vector(-1091.178334, 3.350061, 0)),
    Part.LineSegment(App.Vector(-1091.178334, 3.350061, 0), App.Vector(-1091.178334, -0.725868, 0)),
], False)
sketch8.addConstraint([
    Sketcher.Constraint("Coincident", 0, 2, 1, 1),
    Sketcher.Constraint("Coincident", 1, 2, 2, 1),
    Sketcher.Constraint("Coincident", 2, 2, 3, 1),
    Sketcher.Constraint("Coincident", 3, 2, 4, 1),
    Sketcher.Constraint("Coincident", 4, 2, 5, 1),
    Sketcher.Constraint("Coincident", 5, 2, 6, 1),
    Sketcher.Constraint("Coincident", 6, 2, 7, 1),
    Sketcher.Constraint("Coincident", 7, 2, 8, 1),
    Sketcher.Constraint("Coincident", 8, 2, 9, 1),
    Sketcher.Constraint("Coincident", 9, 2, 10, 1),
    Sketcher.Constraint("Coincident", 10, 2, 11, 1),
    Sketcher.Constraint("Coincident", 11, 2, 0, 1),
    Sketcher.Constraint("Horizontal", 0),
    Sketcher.Constraint("Vertical", 1),
    Sketcher.Constraint("Horizontal", 2),
    Sketcher.Constraint("Vertical", 3),
    Sketcher.Constraint("Horizontal", 4),
    Sketcher.Constraint("Vertical", 5),
    Sketcher.Constraint("Horizontal", 6),
    Sketcher.Constraint("Vertical", 7),
    Sketcher.Constraint("Horizontal", 8),
    Sketcher.Constraint("Vertical", 9),
    Sketcher.Constraint("Horizontal", 10),
    Sketcher.Constraint("Vertical", 11),
    Sketcher.Constraint("Horizontal", 0, 2, 3, 2),
    Sketcher.Constraint("Horizontal", 6, 2, 9, 2),
    Sketcher.Constraint("Equal", 0, 4),
    Sketcher.Constraint("Equal", 6, 10),
    Sketcher.Constraint("DistanceX", 2, 1, 2, 2, 15.0),
    Sketcher.Constraint("DistanceY", 1, 2, 1, 1, 2.0),
    Sketcher.Constraint("DistanceX", 0, 2, 0, 1, 3.5),
    Sketcher.Constraint("DistanceX", 6, 1, 6, 2, 5.313158),
    Sketcher.Constraint("DistanceY", 5, 1, 5, 2, 4.07593),
    Sketcher.Constraint("DistanceY", 7, 1, 7, 2, 1.965181),
    Sketcher.Constraint("DistanceY", 0, 2, -1, 1, 0.725868),
    Sketcher.Constraint("DistanceX", 8, 2, -1, 1, 1096.491492),
])
pad8 = body7.newObject("PartDesign::Pad", "Pad007")
pad8.Profile = sketch8
pad8.Length = 27.8
pad8.Midplane = True

doc.recompute()
